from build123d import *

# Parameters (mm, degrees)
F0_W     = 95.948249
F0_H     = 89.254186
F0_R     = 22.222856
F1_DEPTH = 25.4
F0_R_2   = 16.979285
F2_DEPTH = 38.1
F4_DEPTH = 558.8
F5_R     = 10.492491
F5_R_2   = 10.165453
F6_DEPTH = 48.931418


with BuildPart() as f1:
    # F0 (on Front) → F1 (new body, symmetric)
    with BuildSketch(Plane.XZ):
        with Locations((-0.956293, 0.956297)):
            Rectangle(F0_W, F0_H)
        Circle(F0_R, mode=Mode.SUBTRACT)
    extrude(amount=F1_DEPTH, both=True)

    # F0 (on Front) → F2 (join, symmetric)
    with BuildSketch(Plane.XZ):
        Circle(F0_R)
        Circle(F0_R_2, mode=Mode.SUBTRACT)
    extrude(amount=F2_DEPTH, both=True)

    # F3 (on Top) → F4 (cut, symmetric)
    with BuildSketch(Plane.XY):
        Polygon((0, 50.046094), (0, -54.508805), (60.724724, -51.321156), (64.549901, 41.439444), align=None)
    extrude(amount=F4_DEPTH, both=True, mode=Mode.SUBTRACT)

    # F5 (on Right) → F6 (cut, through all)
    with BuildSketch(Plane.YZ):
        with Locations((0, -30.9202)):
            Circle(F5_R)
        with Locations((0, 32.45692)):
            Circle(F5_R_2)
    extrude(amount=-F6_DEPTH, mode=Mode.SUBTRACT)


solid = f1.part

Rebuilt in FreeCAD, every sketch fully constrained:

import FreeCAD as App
import Part
import Sketcher
Q = App.Units.Quantity

doc = App.newDocument("Part")
body = doc.addObject("PartDesign::Body", "Body")

# Sketch on XZ plane
sketch1 = doc.addObject("Sketcher::SketchObject", "Sketch")
body.addObject(sketch1)
sketch1.AttachmentSupport = (doc.XZ_Plane, [""])
sketch1.MapMode = "FlatFace"
sketch1.addGeometry(Part.LineSegment(App.Vector(-49, 46, 0), App.Vector(-49, -44, 0)), False)
sketch1.addGeometry(Part.LineSegment(App.Vector(-49, -44, 0), App.Vector(47, -44, 0)), False)
sketch1.addGeometry(Part.LineSegment(App.Vector(47, -44, 0), App.Vector(47, 46, 0)), False)
sketch1.addGeometry(Part.LineSegment(App.Vector(47, 46, 0), App.Vector(-49, 46, 0)), False)
sketch1.addGeometry(Part.Circle(App.Vector(0, 0, 0), App.Vector(0, 0, 1), 22), False)
sketch1.addConstraint(Sketcher.Constraint("Coincident", 0, 2, 1, 1))
sketch1.addConstraint(Sketcher.Constraint("Coincident", 1, 2, 2, 1))
sketch1.addConstraint(Sketcher.Constraint("Coincident", 2, 2, 3, 1))
sketch1.addConstraint(Sketcher.Constraint("Coincident", 3, 2, 0, 1))
sketch1.addConstraint(Sketcher.Constraint("Vertical", 0))
sketch1.addConstraint(Sketcher.Constraint("Horizontal", 1))
sketch1.addConstraint(Sketcher.Constraint("Vertical", 2))
sketch1.addConstraint(Sketcher.Constraint("Horizontal", 3))
sketch1.addConstraint(Sketcher.Constraint("Coincident", 4, 3, -1, 1))
sketch1.addConstraint(Sketcher.Constraint("Diameter", 4, Q("44.445712 mm")))
sketch1.addConstraint(Sketcher.Constraint("DistanceX", 1, 1, 1, 2, Q("95.948249 mm")))
sketch1.addConstraint(Sketcher.Constraint("DistanceY", 0, 2, 0, 1, Q("89.254186 mm")))
sketch1.addConstraint(Sketcher.Constraint("DistanceX", -1, 1, 1, 2, Q("47.017831 mm")))
sketch1.addConstraint(Sketcher.Constraint("DistanceY", -1, 1, 2, 2, Q("45.58339 mm")))
pad1 = doc.addObject("PartDesign::Pad", "Pad")
body.addObject(pad1)
pad1.Profile = sketch1
pad1.Length = Q("2 in")
pad1.Midplane = True

# Sketch on XZ plane
sketch2 = doc.addObject("Sketcher::SketchObject", "Sketch001")
body.addObject(sketch2)
sketch2.AttachmentSupport = (doc.XZ_Plane, [""])
sketch2.MapMode = "FlatFace"
sketch2.addGeometry(Part.Circle(App.Vector(0, 0, 0), App.Vector(0, 0, 1), 22), False)
sketch2.addGeometry(Part.Circle(App.Vector(0, 0, 0), App.Vector(0, 0, 1), 17), False)
sketch2.addConstraint(Sketcher.Constraint("Coincident", 0, 3, -1, 1))
sketch2.addConstraint(Sketcher.Constraint("Coincident", 1, 3, -1, 1))
sketch2.addConstraint(Sketcher.Constraint("Diameter", 1, Q("33.95857 mm")))
sketch2.addConstraint(Sketcher.Constraint("Diameter", 0, Q("44.445712 mm")))
pad2 = doc.addObject("PartDesign::Pad", "Pad001")
body.addObject(pad2)
pad2.Profile = sketch2
pad2.Length = Q("3 in")
pad2.Midplane = True

# Sketch on XY plane
sketch3 = doc.addObject("Sketcher::SketchObject", "Sketch002")
body.addObject(sketch3)
sketch3.AttachmentSupport = (doc.XY_Plane, [""])
sketch3.MapMode = "FlatFace"
sketch3.addGeometry(Part.LineSegment(App.Vector(0, 50, 0), App.Vector(0, -55, 0)), False)
sketch3.addGeometry(Part.LineSegment(App.Vector(0, -55, 0), App.Vector(61, -51, 0)), False)
sketch3.addGeometry(Part.LineSegment(App.Vector(61, -51, 0), App.Vector(65, 41, 0)), False)
sketch3.addGeometry(Part.LineSegment(App.Vector(65, 41, 0), App.Vector(0, 50, 0)), False)
sketch3.addConstraint(Sketcher.Constraint("Coincident", 0, 2, 1, 1))
sketch3.addConstraint(Sketcher.Constraint("Coincident", 1, 2, 2, 1))
sketch3.addConstraint(Sketcher.Constraint("Coincident", 2, 2, 3, 1))
sketch3.addConstraint(Sketcher.Constraint("Coincident", 3, 2, 0, 1))
sketch3.addConstraint(Sketcher.Constraint("Vertical", 0))
sketch3.addConstraint(Sketcher.Constraint("PointOnObject", 0, 2, -2))
sketch3.addConstraint(Sketcher.Constraint("DistanceY", 0, 2, 0, 1, Q("104.554899 mm")))
sketch3.addConstraint(Sketcher.Constraint("DistanceX", -1, 1, 2, 2, Q("64.549901 mm")))
sketch3.addConstraint(Sketcher.Constraint("DistanceY", 1, 2, 2, 2, Q("92.7606 mm")))
sketch3.addConstraint(Sketcher.Constraint("Distance", 1, Q("60.808332 mm")))
sketch3.addConstraint(Sketcher.Constraint("Distance", 3, Q("65.12115 mm")))
sketch3.addConstraint(Sketcher.Constraint("DistanceY", 0, 2, -1, 1, Q("54.508805 mm")))
pocket1 = doc.addObject("PartDesign::Pocket", "Pocket")
body.addObject(pocket1)
pocket1.Profile = sketch3
pocket1.Length = Q("44 in")
pocket1.Midplane = True

# Sketch on YZ plane
sketch4 = doc.addObject("Sketcher::SketchObject", "Sketch003")
body.addObject(sketch4)
sketch4.AttachmentSupport = (doc.YZ_Plane, [""])
sketch4.MapMode = "FlatFace"
sketch4.addGeometry(Part.Circle(App.Vector(0, -31, 0), App.Vector(0, 0, 1), 10), False)
sketch4.addGeometry(Part.Circle(App.Vector(0, 32, 0), App.Vector(0, 0, 1), 10), False)
sketch4.addConstraint(Sketcher.Constraint("PointOnObject", 0, 3, -2))
sketch4.addConstraint(Sketcher.Constraint("PointOnObject", 1, 3, -2))
sketch4.addConstraint(Sketcher.Constraint("Diameter", 0, Q("20.984982 mm")))
sketch4.addConstraint(Sketcher.Constraint("Diameter", 1, Q("20.330906 mm")))
sketch4.addConstraint(Sketcher.Constraint("DistanceY", 0, 3, -1, 1, Q("30.9202 mm")))
sketch4.addConstraint(Sketcher.Constraint("DistanceY", -1, 1, 1, 3, Q("32.45692 mm")))
pocket2 = doc.addObject("PartDesign::Pocket", "Pocket001")
body.addObject(pocket2)
pocket2.Profile = sketch4
pocket2.Type = "ThroughAll"

doc.recompute()
